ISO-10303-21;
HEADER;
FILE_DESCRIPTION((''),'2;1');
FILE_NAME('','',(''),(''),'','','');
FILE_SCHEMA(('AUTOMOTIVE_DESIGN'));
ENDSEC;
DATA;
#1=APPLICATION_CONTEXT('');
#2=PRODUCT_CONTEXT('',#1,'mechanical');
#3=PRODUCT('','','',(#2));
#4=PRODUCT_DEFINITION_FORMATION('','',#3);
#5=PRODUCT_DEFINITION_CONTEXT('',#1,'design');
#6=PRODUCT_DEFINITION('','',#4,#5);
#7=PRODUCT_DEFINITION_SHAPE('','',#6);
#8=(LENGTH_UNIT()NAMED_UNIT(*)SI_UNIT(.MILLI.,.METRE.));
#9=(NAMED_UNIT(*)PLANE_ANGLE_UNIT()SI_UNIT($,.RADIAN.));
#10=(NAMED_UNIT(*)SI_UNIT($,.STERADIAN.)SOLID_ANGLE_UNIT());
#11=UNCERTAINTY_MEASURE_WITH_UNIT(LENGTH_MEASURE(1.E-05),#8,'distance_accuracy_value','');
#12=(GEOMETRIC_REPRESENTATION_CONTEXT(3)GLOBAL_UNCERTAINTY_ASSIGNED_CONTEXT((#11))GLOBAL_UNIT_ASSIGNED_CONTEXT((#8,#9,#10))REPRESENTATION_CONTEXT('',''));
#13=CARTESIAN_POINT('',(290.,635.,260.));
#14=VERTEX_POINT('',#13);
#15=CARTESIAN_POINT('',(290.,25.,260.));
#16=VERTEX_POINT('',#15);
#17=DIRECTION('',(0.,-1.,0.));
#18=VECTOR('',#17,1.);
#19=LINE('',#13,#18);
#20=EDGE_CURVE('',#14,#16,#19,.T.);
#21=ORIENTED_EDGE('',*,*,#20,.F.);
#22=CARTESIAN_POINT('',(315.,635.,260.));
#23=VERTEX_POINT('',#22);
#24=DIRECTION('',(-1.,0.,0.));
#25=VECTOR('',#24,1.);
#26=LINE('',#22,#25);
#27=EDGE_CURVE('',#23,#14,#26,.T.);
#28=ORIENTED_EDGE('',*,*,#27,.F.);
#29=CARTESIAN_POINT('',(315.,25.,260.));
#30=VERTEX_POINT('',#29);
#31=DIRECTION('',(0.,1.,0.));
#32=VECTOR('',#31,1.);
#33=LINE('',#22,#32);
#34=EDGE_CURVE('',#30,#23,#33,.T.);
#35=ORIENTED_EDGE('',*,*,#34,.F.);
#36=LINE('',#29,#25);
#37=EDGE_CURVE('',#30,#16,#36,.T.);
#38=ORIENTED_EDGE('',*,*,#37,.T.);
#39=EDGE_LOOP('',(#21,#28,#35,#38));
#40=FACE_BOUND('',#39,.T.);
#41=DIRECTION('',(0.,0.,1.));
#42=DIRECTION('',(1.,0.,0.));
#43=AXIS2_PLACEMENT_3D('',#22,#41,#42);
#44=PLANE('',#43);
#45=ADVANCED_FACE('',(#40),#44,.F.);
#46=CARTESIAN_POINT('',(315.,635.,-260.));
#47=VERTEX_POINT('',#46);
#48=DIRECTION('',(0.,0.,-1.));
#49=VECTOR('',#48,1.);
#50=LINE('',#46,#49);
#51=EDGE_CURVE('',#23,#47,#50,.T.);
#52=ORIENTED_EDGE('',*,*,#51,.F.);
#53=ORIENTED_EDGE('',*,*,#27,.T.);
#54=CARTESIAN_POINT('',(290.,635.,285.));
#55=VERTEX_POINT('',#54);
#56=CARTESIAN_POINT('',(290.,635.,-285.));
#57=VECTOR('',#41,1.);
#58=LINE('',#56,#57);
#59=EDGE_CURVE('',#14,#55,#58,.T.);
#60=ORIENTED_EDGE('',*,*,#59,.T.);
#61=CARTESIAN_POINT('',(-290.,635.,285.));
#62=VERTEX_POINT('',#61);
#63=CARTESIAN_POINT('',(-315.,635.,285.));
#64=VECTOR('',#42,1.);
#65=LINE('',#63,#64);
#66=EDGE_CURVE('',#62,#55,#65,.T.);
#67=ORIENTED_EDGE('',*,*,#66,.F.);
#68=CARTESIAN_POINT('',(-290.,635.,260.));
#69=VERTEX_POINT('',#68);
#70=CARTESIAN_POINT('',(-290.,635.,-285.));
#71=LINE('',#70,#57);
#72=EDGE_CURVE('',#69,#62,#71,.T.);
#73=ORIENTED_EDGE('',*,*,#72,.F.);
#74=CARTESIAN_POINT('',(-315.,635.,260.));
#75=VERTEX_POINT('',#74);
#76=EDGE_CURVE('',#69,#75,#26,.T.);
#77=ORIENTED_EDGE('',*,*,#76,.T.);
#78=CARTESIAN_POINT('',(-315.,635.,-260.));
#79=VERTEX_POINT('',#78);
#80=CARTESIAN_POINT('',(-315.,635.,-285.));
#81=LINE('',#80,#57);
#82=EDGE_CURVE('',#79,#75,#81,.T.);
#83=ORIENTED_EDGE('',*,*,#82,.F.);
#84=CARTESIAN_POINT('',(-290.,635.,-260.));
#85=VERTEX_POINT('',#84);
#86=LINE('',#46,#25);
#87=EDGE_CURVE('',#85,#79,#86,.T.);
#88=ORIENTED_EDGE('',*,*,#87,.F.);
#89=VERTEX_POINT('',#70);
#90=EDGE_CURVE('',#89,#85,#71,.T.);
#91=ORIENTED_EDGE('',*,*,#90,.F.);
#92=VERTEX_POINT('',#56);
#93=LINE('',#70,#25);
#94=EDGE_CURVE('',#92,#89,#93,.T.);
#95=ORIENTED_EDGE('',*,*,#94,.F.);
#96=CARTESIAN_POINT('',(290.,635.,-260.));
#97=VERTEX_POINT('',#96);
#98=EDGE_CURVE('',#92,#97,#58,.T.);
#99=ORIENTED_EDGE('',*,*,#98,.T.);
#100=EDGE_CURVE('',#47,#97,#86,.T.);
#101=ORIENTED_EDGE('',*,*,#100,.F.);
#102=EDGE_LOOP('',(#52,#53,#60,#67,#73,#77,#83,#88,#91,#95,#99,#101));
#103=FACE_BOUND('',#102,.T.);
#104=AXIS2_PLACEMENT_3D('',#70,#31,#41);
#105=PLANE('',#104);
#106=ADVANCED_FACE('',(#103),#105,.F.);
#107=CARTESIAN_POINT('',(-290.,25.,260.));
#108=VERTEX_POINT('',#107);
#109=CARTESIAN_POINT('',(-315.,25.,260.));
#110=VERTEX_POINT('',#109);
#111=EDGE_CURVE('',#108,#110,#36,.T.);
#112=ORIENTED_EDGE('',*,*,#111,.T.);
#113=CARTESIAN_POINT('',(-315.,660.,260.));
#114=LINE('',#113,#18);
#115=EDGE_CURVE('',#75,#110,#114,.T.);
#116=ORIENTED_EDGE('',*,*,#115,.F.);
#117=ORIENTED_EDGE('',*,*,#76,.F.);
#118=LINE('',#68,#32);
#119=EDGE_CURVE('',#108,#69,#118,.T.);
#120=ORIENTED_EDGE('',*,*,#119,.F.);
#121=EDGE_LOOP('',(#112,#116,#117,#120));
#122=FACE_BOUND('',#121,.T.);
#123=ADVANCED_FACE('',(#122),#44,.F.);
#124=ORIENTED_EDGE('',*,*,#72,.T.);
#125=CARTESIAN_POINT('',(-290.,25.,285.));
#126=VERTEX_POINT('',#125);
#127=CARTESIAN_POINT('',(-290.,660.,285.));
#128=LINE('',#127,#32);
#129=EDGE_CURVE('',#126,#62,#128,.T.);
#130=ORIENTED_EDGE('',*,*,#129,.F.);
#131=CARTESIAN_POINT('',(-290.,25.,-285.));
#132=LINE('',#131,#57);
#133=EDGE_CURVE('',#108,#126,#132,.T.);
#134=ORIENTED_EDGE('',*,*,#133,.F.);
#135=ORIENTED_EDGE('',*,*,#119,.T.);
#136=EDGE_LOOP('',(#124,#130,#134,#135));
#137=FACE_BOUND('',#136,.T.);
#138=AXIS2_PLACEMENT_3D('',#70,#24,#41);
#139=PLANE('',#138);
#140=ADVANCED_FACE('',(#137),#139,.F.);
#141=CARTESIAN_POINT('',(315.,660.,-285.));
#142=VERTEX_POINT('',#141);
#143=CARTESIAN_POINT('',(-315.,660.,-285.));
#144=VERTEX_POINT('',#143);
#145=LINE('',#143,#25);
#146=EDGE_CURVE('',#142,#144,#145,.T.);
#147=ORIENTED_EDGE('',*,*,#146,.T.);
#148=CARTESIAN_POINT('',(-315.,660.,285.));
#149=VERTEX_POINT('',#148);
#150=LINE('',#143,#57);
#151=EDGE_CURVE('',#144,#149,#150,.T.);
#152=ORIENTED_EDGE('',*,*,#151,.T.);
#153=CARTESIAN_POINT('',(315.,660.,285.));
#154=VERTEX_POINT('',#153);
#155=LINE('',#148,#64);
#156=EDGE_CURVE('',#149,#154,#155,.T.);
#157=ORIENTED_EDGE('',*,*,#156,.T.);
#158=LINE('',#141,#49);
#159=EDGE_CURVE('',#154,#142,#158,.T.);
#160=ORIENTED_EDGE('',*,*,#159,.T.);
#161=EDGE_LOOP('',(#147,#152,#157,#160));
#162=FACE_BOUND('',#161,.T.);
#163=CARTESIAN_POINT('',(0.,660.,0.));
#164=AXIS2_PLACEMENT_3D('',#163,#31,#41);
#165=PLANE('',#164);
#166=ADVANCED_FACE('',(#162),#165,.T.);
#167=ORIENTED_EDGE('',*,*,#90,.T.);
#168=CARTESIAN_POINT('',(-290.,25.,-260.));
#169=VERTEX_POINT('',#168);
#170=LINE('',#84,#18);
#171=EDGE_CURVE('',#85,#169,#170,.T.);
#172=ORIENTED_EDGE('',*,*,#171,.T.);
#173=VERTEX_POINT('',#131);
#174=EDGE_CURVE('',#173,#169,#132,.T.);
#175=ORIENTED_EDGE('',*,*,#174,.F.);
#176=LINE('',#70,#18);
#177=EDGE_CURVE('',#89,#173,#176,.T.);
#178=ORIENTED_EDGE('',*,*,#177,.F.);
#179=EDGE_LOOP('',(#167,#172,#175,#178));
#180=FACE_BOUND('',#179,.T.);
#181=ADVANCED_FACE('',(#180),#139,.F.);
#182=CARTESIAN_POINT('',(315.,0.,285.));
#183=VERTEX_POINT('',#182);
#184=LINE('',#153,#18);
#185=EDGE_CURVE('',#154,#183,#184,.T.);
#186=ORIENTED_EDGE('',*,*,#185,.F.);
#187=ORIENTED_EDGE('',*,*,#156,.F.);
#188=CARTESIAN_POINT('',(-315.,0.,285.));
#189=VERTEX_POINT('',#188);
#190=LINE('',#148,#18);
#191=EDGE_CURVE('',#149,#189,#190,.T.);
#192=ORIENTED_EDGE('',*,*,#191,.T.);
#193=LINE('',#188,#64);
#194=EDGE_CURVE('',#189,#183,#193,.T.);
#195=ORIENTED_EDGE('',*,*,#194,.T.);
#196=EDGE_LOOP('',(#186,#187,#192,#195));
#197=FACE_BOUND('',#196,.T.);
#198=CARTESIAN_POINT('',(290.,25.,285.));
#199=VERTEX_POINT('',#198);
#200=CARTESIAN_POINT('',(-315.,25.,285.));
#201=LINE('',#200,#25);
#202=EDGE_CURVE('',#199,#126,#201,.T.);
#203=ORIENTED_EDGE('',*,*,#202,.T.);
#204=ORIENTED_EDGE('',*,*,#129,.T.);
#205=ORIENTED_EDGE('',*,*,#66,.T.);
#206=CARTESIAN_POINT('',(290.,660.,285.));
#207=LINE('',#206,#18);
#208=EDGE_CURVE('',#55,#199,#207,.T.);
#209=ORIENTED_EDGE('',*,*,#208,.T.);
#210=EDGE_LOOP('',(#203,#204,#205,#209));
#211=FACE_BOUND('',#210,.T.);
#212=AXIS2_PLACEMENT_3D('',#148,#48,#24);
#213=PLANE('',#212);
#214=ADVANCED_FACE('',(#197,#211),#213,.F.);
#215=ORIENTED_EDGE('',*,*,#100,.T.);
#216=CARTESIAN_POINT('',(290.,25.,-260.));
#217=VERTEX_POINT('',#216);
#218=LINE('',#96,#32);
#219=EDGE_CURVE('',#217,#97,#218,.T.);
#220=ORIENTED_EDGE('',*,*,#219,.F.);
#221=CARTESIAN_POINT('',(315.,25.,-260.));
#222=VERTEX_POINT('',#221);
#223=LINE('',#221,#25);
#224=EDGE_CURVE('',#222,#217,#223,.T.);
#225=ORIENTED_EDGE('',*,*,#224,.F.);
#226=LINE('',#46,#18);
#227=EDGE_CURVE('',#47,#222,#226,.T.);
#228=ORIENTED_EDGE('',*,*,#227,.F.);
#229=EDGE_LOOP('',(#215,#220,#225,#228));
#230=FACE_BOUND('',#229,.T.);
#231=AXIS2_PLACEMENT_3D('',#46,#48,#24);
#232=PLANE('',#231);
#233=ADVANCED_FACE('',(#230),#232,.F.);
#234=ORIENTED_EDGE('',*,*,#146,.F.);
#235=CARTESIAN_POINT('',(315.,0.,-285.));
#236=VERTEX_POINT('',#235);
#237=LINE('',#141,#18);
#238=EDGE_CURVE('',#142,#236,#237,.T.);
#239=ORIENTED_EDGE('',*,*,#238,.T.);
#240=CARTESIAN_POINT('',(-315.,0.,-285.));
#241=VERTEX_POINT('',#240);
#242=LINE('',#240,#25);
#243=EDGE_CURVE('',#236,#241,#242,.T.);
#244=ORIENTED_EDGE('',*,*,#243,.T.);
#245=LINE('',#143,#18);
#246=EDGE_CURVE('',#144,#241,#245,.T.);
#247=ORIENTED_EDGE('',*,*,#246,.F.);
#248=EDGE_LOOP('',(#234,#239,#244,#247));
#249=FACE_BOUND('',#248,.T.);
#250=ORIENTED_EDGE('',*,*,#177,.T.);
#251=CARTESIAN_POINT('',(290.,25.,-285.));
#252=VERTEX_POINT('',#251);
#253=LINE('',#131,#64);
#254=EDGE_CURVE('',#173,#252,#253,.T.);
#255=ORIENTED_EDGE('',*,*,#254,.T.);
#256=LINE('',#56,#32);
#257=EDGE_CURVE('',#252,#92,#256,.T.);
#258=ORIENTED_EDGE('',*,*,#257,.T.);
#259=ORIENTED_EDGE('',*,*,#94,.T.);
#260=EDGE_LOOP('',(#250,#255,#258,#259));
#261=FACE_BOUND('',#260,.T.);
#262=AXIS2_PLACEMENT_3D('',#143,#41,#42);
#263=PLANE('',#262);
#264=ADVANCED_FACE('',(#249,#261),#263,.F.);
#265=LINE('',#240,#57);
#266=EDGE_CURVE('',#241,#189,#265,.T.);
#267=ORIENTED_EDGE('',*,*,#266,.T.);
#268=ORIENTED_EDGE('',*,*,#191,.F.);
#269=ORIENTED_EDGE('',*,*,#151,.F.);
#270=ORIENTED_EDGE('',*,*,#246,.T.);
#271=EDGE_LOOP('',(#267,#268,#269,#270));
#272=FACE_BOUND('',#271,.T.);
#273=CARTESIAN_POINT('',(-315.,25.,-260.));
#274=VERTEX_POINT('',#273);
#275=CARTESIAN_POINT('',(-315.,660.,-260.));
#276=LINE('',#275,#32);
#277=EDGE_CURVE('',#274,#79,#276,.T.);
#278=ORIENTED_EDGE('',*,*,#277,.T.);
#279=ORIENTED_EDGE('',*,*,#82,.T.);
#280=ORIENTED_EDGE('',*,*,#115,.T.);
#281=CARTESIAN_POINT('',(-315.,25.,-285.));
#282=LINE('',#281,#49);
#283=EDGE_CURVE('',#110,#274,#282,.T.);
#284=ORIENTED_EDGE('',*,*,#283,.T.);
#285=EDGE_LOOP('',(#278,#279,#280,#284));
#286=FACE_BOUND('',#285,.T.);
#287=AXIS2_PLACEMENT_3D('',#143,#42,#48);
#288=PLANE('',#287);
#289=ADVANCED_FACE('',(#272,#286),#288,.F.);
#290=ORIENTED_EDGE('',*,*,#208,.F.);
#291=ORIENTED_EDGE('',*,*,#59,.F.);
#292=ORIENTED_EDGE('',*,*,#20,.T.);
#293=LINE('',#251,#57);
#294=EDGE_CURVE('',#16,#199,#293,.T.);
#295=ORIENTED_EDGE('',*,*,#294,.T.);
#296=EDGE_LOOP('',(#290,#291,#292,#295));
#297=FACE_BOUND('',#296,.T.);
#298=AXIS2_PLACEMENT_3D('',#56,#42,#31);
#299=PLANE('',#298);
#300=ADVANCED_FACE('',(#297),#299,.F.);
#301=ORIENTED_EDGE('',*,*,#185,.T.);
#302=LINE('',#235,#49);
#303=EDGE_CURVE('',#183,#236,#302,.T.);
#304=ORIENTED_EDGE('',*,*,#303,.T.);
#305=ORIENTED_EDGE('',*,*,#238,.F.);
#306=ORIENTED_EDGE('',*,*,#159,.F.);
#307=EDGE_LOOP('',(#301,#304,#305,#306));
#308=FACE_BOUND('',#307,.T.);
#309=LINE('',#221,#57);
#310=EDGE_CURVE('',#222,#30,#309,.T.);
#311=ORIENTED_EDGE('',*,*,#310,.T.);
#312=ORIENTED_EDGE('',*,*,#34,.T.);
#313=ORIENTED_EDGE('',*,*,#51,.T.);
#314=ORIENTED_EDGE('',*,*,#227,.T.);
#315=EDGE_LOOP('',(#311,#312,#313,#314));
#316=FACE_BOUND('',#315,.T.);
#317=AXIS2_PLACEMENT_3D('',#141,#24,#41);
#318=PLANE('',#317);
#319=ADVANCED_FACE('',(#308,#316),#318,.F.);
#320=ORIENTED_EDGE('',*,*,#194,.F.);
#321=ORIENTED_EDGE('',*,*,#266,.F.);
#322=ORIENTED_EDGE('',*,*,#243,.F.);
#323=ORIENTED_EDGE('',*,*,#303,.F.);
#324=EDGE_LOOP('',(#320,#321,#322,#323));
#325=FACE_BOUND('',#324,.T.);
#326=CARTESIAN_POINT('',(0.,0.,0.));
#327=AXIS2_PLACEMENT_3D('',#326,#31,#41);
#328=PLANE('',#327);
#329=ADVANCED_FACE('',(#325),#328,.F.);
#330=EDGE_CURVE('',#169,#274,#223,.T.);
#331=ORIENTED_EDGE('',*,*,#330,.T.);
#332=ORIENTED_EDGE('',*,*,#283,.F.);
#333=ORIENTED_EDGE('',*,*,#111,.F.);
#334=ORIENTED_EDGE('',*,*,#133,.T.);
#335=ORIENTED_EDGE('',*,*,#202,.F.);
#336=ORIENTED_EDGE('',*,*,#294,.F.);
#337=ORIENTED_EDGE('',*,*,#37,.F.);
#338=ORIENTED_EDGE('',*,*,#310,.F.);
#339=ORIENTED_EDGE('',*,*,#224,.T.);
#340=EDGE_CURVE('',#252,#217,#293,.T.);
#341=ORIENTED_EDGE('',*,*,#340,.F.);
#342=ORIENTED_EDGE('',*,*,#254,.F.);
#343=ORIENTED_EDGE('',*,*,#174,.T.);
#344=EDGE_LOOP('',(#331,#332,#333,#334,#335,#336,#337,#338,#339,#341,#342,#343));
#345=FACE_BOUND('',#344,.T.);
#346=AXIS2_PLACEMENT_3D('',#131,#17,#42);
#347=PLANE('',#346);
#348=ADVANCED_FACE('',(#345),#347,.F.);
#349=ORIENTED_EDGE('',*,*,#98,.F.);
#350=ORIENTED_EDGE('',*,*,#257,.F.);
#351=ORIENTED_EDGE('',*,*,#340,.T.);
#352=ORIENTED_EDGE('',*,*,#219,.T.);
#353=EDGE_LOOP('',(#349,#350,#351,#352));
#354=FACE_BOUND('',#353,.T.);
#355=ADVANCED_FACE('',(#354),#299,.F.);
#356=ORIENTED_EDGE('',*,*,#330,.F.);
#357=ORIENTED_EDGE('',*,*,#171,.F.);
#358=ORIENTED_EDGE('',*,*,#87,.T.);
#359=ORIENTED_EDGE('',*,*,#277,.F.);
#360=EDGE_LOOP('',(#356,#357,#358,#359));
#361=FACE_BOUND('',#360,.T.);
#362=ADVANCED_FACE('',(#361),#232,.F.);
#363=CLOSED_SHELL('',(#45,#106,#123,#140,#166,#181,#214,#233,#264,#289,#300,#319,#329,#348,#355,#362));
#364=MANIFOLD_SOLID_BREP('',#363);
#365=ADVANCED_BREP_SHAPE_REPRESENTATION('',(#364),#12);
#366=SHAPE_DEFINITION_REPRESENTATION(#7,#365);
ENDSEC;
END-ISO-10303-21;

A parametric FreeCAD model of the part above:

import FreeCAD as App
import Part
import Sketcher
from FreeCAD import Vector
Q = App.Units.Quantity

doc = App.newDocument("Part")
body = doc.addObject("PartDesign::Body", "Body")

# Sketch on XZ plane
sketch1 = body.newObject("Sketcher::SketchObject", "Sketch")
sketch1.AttachmentSupport = (doc.getObject("XZ_Plane"), [""])
sketch1.MapMode = "FlatFace"
sketch1.addGeometry([
    Part.LineSegment(Vector(-315, -285, 0), Vector(-315, 285, 0)),
    Part.LineSegment(Vector(-315, 285, 0), Vector(315, 285, 0)),
    Part.LineSegment(Vector(315, 285, 0), Vector(315, -285, 0)),
    Part.LineSegment(Vector(315, -285, 0), Vector(-315, -285, 0)),
], False)
sketch1.addConstraint([
    Sketcher.Constraint("Coincident", 0, 2, 1, 1),
    Sketcher.Constraint("Coincident", 1, 2, 2, 1),
    Sketcher.Constraint("Coincident", 2, 2, 3, 1),
    Sketcher.Constraint("Coincident", 3, 2, 0, 1),
    Sketcher.Constraint("Vertical", 0),
    Sketcher.Constraint("Horizontal", 1),
    Sketcher.Constraint("Vertical", 2),
    Sketcher.Constraint("Horizontal", 3),
    Sketcher.Constraint("Symmetric", 0, 2, 2, 2, -1, 1),
    Sketcher.Constraint("DistanceX", 1, 1, 1, 2, Q("630 mm")),
    Sketcher.Constraint("DistanceY", 0, 1, 0, 2, Q("570 mm")),
])
pad1 = body.newObject("PartDesign::Pad", "Pad")
pad1.Profile = sketch1
pad1.Length = 660
pad1.Reversed = True

# Sketch on XY plane
sketch2 = body.newObject("Sketcher::SketchObject", "Sketch001")
sketch2.AttachmentSupport = (doc.getObject("XY_Plane"), [""])
sketch2.MapMode = "FlatFace"
sketch2.AttachmentOffset = App.Placement(Vector(0, 0, 285), App.Rotation())
sketch2.addGeometry([
    Part.LineSegment(Vector(-290, 635, 0), Vector(-290, 25, 0)),
    Part.LineSegment(Vector(-290, 25, 0), Vector(290, 25, 0)),
    Part.LineSegment(Vector(290, 25, 0), Vector(290, 635, 0)),
    Part.LineSegment(Vector(290, 635, 0), Vector(-290, 635, 0)),
], False)
sketch2.addConstraint([
    Sketcher.Constraint("Coincident", 0, 2, 1, 1),
    Sketcher.Constraint("Coincident", 1, 2, 2, 1),
    Sketcher.Constraint("Coincident", 2, 2, 3, 1),
    Sketcher.Constraint("Coincident", 3, 2, 0, 1),
    Sketcher.Constraint("Vertical", 0),
    Sketcher.Constraint("Horizontal", 1),
    Sketcher.Constraint("Vertical", 2),
    Sketcher.Constraint("Horizontal", 3),
    Sketcher.Constraint("DistanceX", 1, 1, 1, 2, Q("580 mm")),
    Sketcher.Constraint("DistanceY", 0, 2, 0, 1, Q("610 mm")),
    Sketcher.Constraint("DistanceX", 0, 2, -1, 1, Q("290 mm")),
    Sketcher.Constraint("DistanceY", -1, 1, 0, 2, Q("25 mm")),
])
pocket1 = body.newObject("PartDesign::Pocket", "Pocket")
pocket1.Profile = sketch2
pocket1.Type = "ThroughAll"
pocket1.Midplane = True

# Sketch on YZ plane
sketch3 = body.newObject("Sketcher::SketchObject", "Sketch002")
sketch3.AttachmentSupport = (doc.getObject("YZ_Plane"), [""])
sketch3.MapMode = "FlatFace"
sketch3.AttachmentOffset = App.Placement(Vector(0, 0, -315), App.Rotation())
sketch3.addGeometry([
    Part.LineSegment(Vector(635, -260, 0), Vector(25, -260, 0)),
    Part.LineSegment(Vector(25, -260, 0), Vector(25, 260, 0)),
    Part.LineSegment(Vector(25, 260, 0), Vector(635, 260, 0)),
    Part.LineSegment(Vector(635, 260, 0), Vector(635, -260, 0)),
], False)
sketch3.addConstraint([
    Sketcher.Constraint("Coincident", 0, 2, 1, 1),
    Sketcher.Constraint("Coincident", 1, 2, 2, 1),
    Sketcher.Constraint("Coincident", 2, 2, 3, 1),
    Sketcher.Constraint("Coincident", 3, 2, 0, 1),
    Sketcher.Constraint("Horizontal", 0),
    Sketcher.Constraint("Vertical", 1),
    Sketcher.Constraint("Horizontal", 2),
    Sketcher.Constraint("Vertical", 3),
    Sketcher.Constraint("DistanceX", 0, 2, 0, 1, Q("610 mm")),
    Sketcher.Constraint("DistanceY", 1, 1, 1, 2, Q("520 mm")),
    Sketcher.Constraint("DistanceX", -1, 1, 0, 2, Q("25 mm")),
    Sketcher.Constraint("DistanceY", 0, 2, -1, 1, Q("260 mm")),
])
pocket2 = body.newObject("PartDesign::Pocket", "Pocket001")
pocket2.Profile = sketch3
pocket2.Type = "ThroughAll"
pocket2.Midplane = True

doc.recompute()
